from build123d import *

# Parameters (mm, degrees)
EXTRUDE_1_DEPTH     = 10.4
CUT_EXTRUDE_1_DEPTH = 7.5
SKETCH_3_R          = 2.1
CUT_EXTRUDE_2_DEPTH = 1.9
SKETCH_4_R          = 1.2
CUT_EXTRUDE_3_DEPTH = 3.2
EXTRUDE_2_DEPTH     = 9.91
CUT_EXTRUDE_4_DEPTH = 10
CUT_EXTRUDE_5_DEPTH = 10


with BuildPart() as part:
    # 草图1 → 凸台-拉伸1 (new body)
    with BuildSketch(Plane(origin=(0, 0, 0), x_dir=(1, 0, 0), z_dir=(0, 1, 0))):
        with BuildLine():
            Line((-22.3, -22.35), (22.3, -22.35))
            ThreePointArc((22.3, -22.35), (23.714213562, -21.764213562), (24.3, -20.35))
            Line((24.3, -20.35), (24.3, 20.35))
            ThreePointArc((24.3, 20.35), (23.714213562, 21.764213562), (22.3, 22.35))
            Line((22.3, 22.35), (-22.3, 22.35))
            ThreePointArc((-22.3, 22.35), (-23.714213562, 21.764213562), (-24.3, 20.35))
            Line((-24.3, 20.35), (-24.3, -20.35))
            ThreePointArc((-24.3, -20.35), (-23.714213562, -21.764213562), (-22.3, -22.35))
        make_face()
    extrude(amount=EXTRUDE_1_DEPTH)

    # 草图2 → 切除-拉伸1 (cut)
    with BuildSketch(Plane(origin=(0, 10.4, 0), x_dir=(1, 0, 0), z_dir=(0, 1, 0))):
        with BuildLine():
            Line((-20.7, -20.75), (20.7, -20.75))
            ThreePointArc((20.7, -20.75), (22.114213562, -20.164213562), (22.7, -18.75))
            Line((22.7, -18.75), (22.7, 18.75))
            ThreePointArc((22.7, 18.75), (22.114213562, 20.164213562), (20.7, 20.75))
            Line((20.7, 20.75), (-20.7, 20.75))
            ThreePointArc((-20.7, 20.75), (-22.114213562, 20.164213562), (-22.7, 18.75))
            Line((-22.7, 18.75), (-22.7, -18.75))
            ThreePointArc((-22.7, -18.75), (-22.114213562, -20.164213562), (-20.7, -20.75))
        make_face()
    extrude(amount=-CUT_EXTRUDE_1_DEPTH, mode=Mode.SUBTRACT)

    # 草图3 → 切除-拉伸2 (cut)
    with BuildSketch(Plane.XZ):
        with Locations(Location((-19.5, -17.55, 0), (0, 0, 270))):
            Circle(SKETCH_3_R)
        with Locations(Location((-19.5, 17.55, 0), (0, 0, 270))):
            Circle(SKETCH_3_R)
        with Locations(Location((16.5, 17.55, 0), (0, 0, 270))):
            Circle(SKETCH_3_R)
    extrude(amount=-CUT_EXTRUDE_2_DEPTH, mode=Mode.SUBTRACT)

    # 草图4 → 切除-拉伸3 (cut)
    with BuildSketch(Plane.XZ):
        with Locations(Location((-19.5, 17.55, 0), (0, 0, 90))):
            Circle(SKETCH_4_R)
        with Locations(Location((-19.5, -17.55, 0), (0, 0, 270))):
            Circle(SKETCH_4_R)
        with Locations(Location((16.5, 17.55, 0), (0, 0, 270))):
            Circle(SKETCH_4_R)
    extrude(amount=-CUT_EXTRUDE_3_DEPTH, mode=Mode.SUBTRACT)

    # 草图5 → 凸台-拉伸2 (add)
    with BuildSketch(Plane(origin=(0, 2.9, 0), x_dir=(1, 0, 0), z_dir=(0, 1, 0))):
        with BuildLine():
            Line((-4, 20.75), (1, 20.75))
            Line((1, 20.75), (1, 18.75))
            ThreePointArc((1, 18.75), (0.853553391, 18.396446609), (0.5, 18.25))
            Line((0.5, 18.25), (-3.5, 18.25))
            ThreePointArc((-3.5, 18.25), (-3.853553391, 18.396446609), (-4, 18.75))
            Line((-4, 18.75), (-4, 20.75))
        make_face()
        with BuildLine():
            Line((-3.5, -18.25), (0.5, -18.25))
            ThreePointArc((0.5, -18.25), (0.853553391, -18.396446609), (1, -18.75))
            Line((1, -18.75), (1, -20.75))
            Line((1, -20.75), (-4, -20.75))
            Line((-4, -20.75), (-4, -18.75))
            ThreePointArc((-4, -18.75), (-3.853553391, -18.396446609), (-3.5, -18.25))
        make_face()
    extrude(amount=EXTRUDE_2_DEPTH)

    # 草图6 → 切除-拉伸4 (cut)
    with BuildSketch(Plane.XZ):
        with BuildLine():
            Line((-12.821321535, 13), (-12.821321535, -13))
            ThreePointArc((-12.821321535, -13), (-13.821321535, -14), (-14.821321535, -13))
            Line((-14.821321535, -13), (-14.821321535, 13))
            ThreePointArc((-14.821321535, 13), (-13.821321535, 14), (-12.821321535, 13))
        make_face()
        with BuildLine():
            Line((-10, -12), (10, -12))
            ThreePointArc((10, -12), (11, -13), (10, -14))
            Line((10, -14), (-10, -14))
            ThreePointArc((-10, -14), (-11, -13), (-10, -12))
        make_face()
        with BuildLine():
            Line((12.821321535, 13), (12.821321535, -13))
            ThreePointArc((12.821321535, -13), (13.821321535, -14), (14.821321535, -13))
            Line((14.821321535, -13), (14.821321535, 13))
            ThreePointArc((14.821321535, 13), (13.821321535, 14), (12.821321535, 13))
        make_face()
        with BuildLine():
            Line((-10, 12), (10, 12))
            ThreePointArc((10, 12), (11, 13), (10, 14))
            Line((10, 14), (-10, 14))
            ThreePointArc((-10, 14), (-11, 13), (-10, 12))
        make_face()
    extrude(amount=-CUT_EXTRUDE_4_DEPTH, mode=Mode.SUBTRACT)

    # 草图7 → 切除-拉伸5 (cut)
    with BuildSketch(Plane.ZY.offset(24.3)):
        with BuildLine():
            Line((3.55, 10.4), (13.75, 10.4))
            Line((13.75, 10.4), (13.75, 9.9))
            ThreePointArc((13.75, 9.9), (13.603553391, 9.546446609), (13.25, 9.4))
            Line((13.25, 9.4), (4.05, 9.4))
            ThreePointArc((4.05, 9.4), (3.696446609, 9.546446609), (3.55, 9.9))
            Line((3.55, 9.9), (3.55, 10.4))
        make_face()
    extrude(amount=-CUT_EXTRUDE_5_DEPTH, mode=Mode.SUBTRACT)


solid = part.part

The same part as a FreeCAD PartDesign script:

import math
import FreeCAD as App
import Part
import Sketcher
from FreeCAD import Vector
Q = App.Units.Quantity

doc = App.newDocument("Part")
body = doc.addObject("PartDesign::Body", "Body")

sketch1 = body.newObject("Sketcher::SketchObject", "Sketch")
sketch1.AttachmentSupport = (doc.getObject("XZ_Plane"), [""])
sketch1.MapMode = "FlatFace"
sketch1.addGeometry(Part.LineSegment(Vector(-22.3, 22.4, 0), Vector(22.3, 22.4, 0)), False)
sketch1.addGeometry(Part.ArcOfCircle(Part.Circle(Vector(22.3, 20.3, 0), Vector(0, 0, 1), 2), math.radians(0), math.radians(90)), False)
sketch1.addGeometry(Part.LineSegment(Vector(24.3, 20.4, 0), Vector(24.3, -20.4, 0)), False)
sketch1.addGeometry(Part.ArcOfCircle(Part.Circle(Vector(22.3, -20.3, 0), Vector(0, 0, 1), 2), math.radians(-90), math.radians(0)), False)
sketch1.addGeometry(Part.LineSegment(Vector(22.3, -22.4, 0), Vector(-22.3, -22.4, 0)), False)
sketch1.addGeometry(Part.ArcOfCircle(Part.Circle(Vector(-22.3, -20.3, 0), Vector(0, 0, 1), 2), math.radians(-180), math.radians(-90)), False)
sketch1.addGeometry(Part.LineSegment(Vector(-24.3, -20.4, 0), Vector(-24.3, 20.4, 0)), False)
sketch1.addGeometry(Part.ArcOfCircle(Part.Circle(Vector(-22.3, 20.3, 0), Vector(0, 0, 1), 2), math.radians(90), math.radians(180)), False)
sketch1.addConstraint(Sketcher.Constraint("Tangent", 0, 2, 1, 2))
sketch1.addConstraint(Sketcher.Constraint("Tangent", 1, 1, 2, 1))
sketch1.addConstraint(Sketcher.Constraint("Tangent", 2, 2, 3, 2))
sketch1.addConstraint(Sketcher.Constraint("Tangent", 3, 1, 4, 1))
sketch1.addConstraint(Sketcher.Constraint("Tangent", 4, 2, 5, 2))
sketch1.addConstraint(Sketcher.Constraint("Tangent", 5, 1, 6, 1))
sketch1.addConstraint(Sketcher.Constraint("Tangent", 6, 2, 7, 2))
sketch1.addConstraint(Sketcher.Constraint("Tangent", 7, 1, 0, 1))
sketch1.addConstraint(Sketcher.Constraint("Horizontal", 0))
sketch1.addConstraint(Sketcher.Constraint("Vertical", 2))
sketch1.addConstraint(Sketcher.Constraint("Horizontal", 4))
sketch1.addConstraint(Sketcher.Constraint("Vertical", 6))
sketch1.addConstraint(Sketcher.Constraint("Equal", 1, 3))
sketch1.addConstraint(Sketcher.Constraint("Equal", 3, 5))
sketch1.addConstraint(Sketcher.Constraint("Equal", 5, 7))
sketch1.addConstraint(Sketcher.Constraint("Symmetric", 1, 3, 5, 3, -1, 1))
sketch1.addConstraint(Sketcher.Constraint("Radius", 1, Q("2 mm")))
sketch1.addConstraint(Sketcher.Constraint("DistanceX", 0, 1, 0, 2, Q("44.6 mm")))
sketch1.addConstraint(Sketcher.Constraint("DistanceY", 2, 2, 2, 1, Q("40.7 mm")))
pad1 = body.newObject("PartDesign::Pad", "Pad")
pad1.Profile = sketch1
pad1.Length = 10.4
pad1.Reversed = True

sketch2 = body.newObject("Sketcher::SketchObject", "Sketch001")
sketch2.AttachmentSupport = (doc.getObject("XZ_Plane"), [""])
sketch2.MapMode = "FlatFace"
sketch2.AttachmentOffset = App.Placement(Vector(0, 0, -10.4), App.Rotation())
sketch2.addGeometry(Part.LineSegment(Vector(-20.7, 20.8, 0), Vector(20.7, 20.8, 0)), False)
sketch2.addGeometry(Part.ArcOfCircle(Part.Circle(Vector(20.7, 18.7, 0), Vector(0, 0, 1), 2), math.radians(0), math.radians(90)), False)
sketch2.addGeometry(Part.LineSegment(Vector(22.7, 18.8, 0), Vector(22.7, -18.8, 0)), False)
sketch2.addGeometry(Part.ArcOfCircle(Part.Circle(Vector(20.7, -18.7, 0), Vector(0, 0, 1), 2), math.radians(-90), math.radians(0)), False)
sketch2.addGeometry(Part.LineSegment(Vector(20.7, -20.8, 0), Vector(-20.7, -20.8, 0)), False)
sketch2.addGeometry(Part.ArcOfCircle(Part.Circle(Vector(-20.7, -18.7, 0), Vector(0, 0, 1), 2), math.radians(-180), math.radians(-90)), False)
sketch2.addGeometry(Part.LineSegment(Vector(-22.7, -18.8, 0), Vector(-22.7, 18.8, 0)), False)
sketch2.addGeometry(Part.ArcOfCircle(Part.Circle(Vector(-20.7, 18.7, 0), Vector(0, 0, 1), 2), math.radians(90), math.radians(180)), False)
sketch2.addConstraint(Sketcher.Constraint("Tangent", 0, 2, 1, 2))
sketch2.addConstraint(Sketcher.Constraint("Tangent", 1, 1, 2, 1))
sketch2.addConstraint(Sketcher.Constraint("Tangent", 2, 2, 3, 2))
sketch2.addConstraint(Sketcher.Constraint("Tangent", 3, 1, 4, 1))
sketch2.addConstraint(Sketcher.Constraint("Tangent", 4, 2, 5, 2))
sketch2.addConstraint(Sketcher.Constraint("Tangent", 5, 1, 6, 1))
sketch2.addConstraint(Sketcher.Constraint("Tangent", 6, 2, 7, 2))
sketch2.addConstraint(Sketcher.Constraint("Tangent", 7, 1, 0, 1))
sketch2.addConstraint(Sketcher.Constraint("Horizontal", 0))
sketch2.addConstraint(Sketcher.Constraint("Vertical", 2))
sketch2.addConstraint(Sketcher.Constraint("Horizontal", 4))
sketch2.addConstraint(Sketcher.Constraint("Vertical", 6))
sketch2.addConstraint(Sketcher.Constraint("Equal", 1, 3))
sketch2.addConstraint(Sketcher.Constraint("Equal", 3, 5))
sketch2.addConstraint(Sketcher.Constraint("Equal", 5, 7))
sketch2.addConstraint(Sketcher.Constraint("Symmetric", 1, 3, 5, 3, -1, 1))
sketch2.addConstraint(Sketcher.Constraint("Radius", 1, Q("2 mm")))
sketch2.addConstraint(Sketcher.Constraint("DistanceX", 0, 1, 0, 2, Q("41.4 mm")))
sketch2.addConstraint(Sketcher.Constraint("DistanceY", 2, 2, 2, 1, Q("37.5 mm")))
pocket1 = body.newObject("PartDesign::Pocket", "Pocket")
pocket1.Profile = sketch2
pocket1.Length = 7.5
pocket1.Reversed = True

sketch3 = body.newObject("Sketcher::SketchObject", "Sketch002")
sketch3.AttachmentSupport = (doc.getObject("XZ_Plane"), [""])
sketch3.MapMode = "FlatFace"
sketch3.addGeometry(Part.Circle(Vector(-19.5, -17.6, 0), Vector(0, 0, 1), 2.1), False)
sketch3.addGeometry(Part.Circle(Vector(-19.5, 17.6, 0), Vector(0, 0, 1), 2.1), False)
sketch3.addGeometry(Part.Circle(Vector(16.5, 17.6, 0), Vector(0, 0, 1), 2.1), False)
sketch3.addConstraint(Sketcher.Constraint("Equal", 0, 1))
sketch3.addConstraint(Sketcher.Constraint("Equal", 1, 2))
sketch3.addConstraint(Sketcher.Constraint("Symmetric", 0, 3, 1, 3, -1))
sketch3.addConstraint(Sketcher.Constraint("Horizontal", 1, 3, 2, 3))
sketch3.addConstraint(Sketcher.Constraint("Diameter", 0, Q("4.2 mm")))
sketch3.addConstraint(Sketcher.Constraint("DistanceX", 1, 3, 2, 3, Q("36 mm")))
sketch3.addConstraint(Sketcher.Constraint("DistanceX", 0, 3, -1, 1, Q("19.5 mm")))
sketch3.addConstraint(Sketcher.Constraint("DistanceY", 0, 3, 1, 3, Q("35.1 mm")))
pocket2 = body.newObject("PartDesign::Pocket", "Pocket001")
pocket2.Profile = sketch3
pocket2.Length = 1.9

sketch4 = body.newObject("Sketcher::SketchObject", "Sketch003")
sketch4.AttachmentSupport = (doc.getObject("XZ_Plane"), [""])
sketch4.MapMode = "FlatFace"
sketch4.addGeometry(Part.Circle(Vector(-19.5, 17.6, 0), Vector(0, 0, 1), 1.2), False)
sketch4.addGeometry(Part.Circle(Vector(-19.5, -17.6, 0), Vector(0, 0, 1), 1.2), False)
sketch4.addGeometry(Part.Circle(Vector(16.5, 17.6, 0), Vector(0, 0, 1), 1.2), False)
sketch4.addConstraint(Sketcher.Constraint("Equal", 0, 1))
sketch4.addConstraint(Sketcher.Constraint("Equal", 1, 2))
sketch4.addConstraint(Sketcher.Constraint("Symmetric", 0, 3, 1, 3, -1))
sketch4.addConstraint(Sketcher.Constraint("Horizontal", 0, 3, 2, 3))
sketch4.addConstraint(Sketcher.Constraint("Diameter", 0, Q("2.4 mm")))
sketch4.addConstraint(Sketcher.Constraint("DistanceX", 0, 3, 2, 3, Q("36 mm")))
sketch4.addConstraint(Sketcher.Constraint("DistanceX", 0, 3, -1, 1, Q("19.5 mm")))
sketch4.addConstraint(Sketcher.Constraint("DistanceY", 1, 3, 0, 3, Q("35.1 mm")))
pocket3 = body.newObject("PartDesign::Pocket", "Pocket002")
pocket3.Profile = sketch4
pocket3.Length = 3.2

sketch5 = body.newObject("Sketcher::SketchObject", "Sketch004")
sketch5.AttachmentSupport = (doc.getObject("XZ_Plane"), [""])
sketch5.MapMode = "FlatFace"
sketch5.AttachmentOffset = App.Placement(Vector(0, 0, -2.9), App.Rotation())
sketch5.addGeometry(Part.LineSegment(Vector(1, -20.75, 0), Vector(-4, -20.75, 0)), False)
sketch5.addGeometry(Part.LineSegment(Vector(-4, -20.75, 0), Vector(-4, -18.75, 0)), False)
sketch5.addGeometry(Part.ArcOfCircle(Part.Circle(Vector(-3.5, -18.75, 0), Vector(0, 0, 1), 0.5), math.radians(90), math.radians(180)), False)
sketch5.addGeometry(Part.LineSegment(Vector(-3.5, -18.25, 0), Vector(0.5, -18.25, 0)), False)
sketch5.addGeometry(Part.ArcOfCircle(Part.Circle(Vector(0.5, -18.75, 0), Vector(0, 0, 1), 0.5), math.radians(0), math.radians(90)), False)
sketch5.addGeometry(Part.LineSegment(Vector(1, -18.75, 0), Vector(1, -20.75, 0)), False)
sketch5.addGeometry(Part.LineSegment(Vector(0.5, 18.25, 0), Vector(-3.5, 18.25, 0)), False)
sketch5.addGeometry(Part.ArcOfCircle(Part.Circle(Vector(-3.5, 18.75, 0), Vector(0, 0, 1), 0.5), math.radians(180), math.radians(270)), False)
sketch5.addGeometry(Part.LineSegment(Vector(-4, 18.75, 0), Vector(-4, 20.75, 0)), False)
sketch5.addGeometry(Part.LineSegment(Vector(-4, 20.75, 0), Vector(1, 20.75, 0)), False)
sketch5.addGeometry(Part.LineSegment(Vector(1, 20.75, 0), Vector(1, 18.75, 0)), False)
sketch5.addGeometry(Part.ArcOfCircle(Part.Circle(Vector(0.5, 18.75, 0), Vector(0, 0, 1), 0.5), math.radians(-90), math.radians(0)), False)
sketch5.addConstraint(Sketcher.Constraint("Coincident", 0, 2, 1, 1))
sketch5.addConstraint(Sketcher.Constraint("Tangent", 1, 2, 2, 2))
sketch5.addConstraint(Sketcher.Constraint("Tangent", 2, 1, 3, 1))
sketch5.addConstraint(Sketcher.Constraint("Tangent", 3, 2, 4, 2))
sketch5.addConstraint(Sketcher.Constraint("Tangent", 4, 1, 5, 1))
sketch5.addConstraint(Sketcher.Constraint("Coincident", 5, 2, 0, 1))
sketch5.addConstraint(Sketcher.Constraint("Tangent", 6, 2, 7, 2))
sketch5.addConstraint(Sketcher.Constraint("Tangent", 7, 1, 8, 1))
sketch5.addConstraint(Sketcher.Constraint("Coincident", 8, 2, 9, 1))
sketch5.addConstraint(Sketcher.Constraint("Coincident", 9, 2, 10, 1))
sketch5.addConstraint(Sketcher.Constraint("Tangent", 10, 2, 11, 2))
sketch5.addConstraint(Sketcher.Constraint("Tangent", 11, 1, 6, 1))
sketch5.addConstraint(Sketcher.Constraint("Horizontal", 0))
sketch5.addConstraint(Sketcher.Constraint("Vertical", 1))
sketch5.addConstraint(Sketcher.Constraint("Horizontal", 3))
sketch5.addConstraint(Sketcher.Constraint("Vertical", 5))
sketch5.addConstraint(Sketcher.Constraint("Horizontal", 6))
sketch5.addConstraint(Sketcher.Constraint("Vertical", 8))
sketch5.addConstraint(Sketcher.Constraint("Horizontal", 9))
sketch5.addConstraint(Sketcher.Constraint("Vertical", 10))
sketch5.addConstraint(Sketcher.Constraint("Equal", 2, 4))
sketch5.addConstraint(Sketcher.Constraint("Equal", 4, 7))
sketch5.addConstraint(Sketcher.Constraint("Equal", 7, 11))
sketch5.addConstraint(Sketcher.Constraint("Symmetric", 2, 3, 7, 3, -1))
sketch5.addConstraint(Sketcher.Constraint("Symmetric", 5, 2, 9, 2, -1))
sketch5.addConstraint(Sketcher.Constraint("Radius", 2, Q("0.5 mm")))
sketch5.addConstraint(Sketcher.Constraint("DistanceX", 0, 2, 0, 1, Q("5 mm")))
sketch5.addConstraint(Sketcher.Constraint("DistanceY", 1, 1, 1, 2, Q("2 mm")))
sketch5.addConstraint(Sketcher.Constraint("DistanceX", 0, 2, -1, 1, Q("4 mm")))
sketch5.addConstraint(Sketcher.Constraint("DistanceY", 2, 1, 7, 3, Q("37 mm")))
pad2 = body.newObject("PartDesign::Pad", "Pad001")
pad2.Profile = sketch5
pad2.Length = 9.91
pad2.Reversed = True

sketch6 = body.newObject("Sketcher::SketchObject", "Sketch005")
sketch6.AttachmentSupport = (doc.getObject("XZ_Plane"), [""])
sketch6.MapMode = "FlatFace"
sketch6.addGeometry(Part.LineSegment(Vector(-12.8, -13, 0), Vector(-12.8, 13, 0)), False)
sketch6.addGeometry(Part.ArcOfCircle(Part.Circle(Vector(-13.8, 13, 0), Vector(0, 0, 1), 1), math.radians(0), math.radians(180)), False)
sketch6.addGeometry(Part.LineSegment(Vector(-14.8, 13, 0), Vector(-14.8, -13, 0)), False)
sketch6.addGeometry(Part.ArcOfCircle(Part.Circle(Vector(-13.8, -13, 0), Vector(0, 0, 1), 1), math.radians(180), math.radians(360)), False)
sketch6.addGeometry(Part.LineSegment(Vector(10, -12, 0), Vector(-10, -12, 0)), False)
sketch6.addGeometry(Part.ArcOfCircle(Part.Circle(Vector(-10, -13, 0), Vector(0, 0, 1), 1), math.radians(90), math.radians(270)), False)
sketch6.addGeometry(Part.LineSegment(Vector(-10, -14, 0), Vector(10, -14, 0)), False)
sketch6.addGeometry(Part.ArcOfCircle(Part.Circle(Vector(10, -13, 0), Vector(0, 0, 1), 1), math.radians(-90), math.radians(90)), False)
sketch6.addGeometry(Part.LineSegment(Vector(12.8, 13, 0), Vector(12.8, -13, 0)), False)
sketch6.addGeometry(Part.ArcOfCircle(Part.Circle(Vector(13.8, -13, 0), Vector(0, 0, 1), 1), math.radians(180), math.radians(360)), False)
sketch6.addGeometry(Part.LineSegment(Vector(14.8, -13, 0), Vector(14.8, 13, 0)), False)
sketch6.addGeometry(Part.ArcOfCircle(Part.Circle(Vector(13.8, 13, 0), Vector(0, 0, 1), 1), math.radians(0), math.radians(180)), False)
sketch6.addGeometry(Part.LineSegment(Vector(-10, 12, 0), Vector(10, 12, 0)), False)
sketch6.addGeometry(Part.ArcOfCircle(Part.Circle(Vector(10, 13, 0), Vector(0, 0, 1), 1), math.radians(-90), math.radians(90)), False)
sketch6.addGeometry(Part.LineSegment(Vector(10, 14, 0), Vector(-10, 14, 0)), False)
sketch6.addGeometry(Part.ArcOfCircle(Part.Circle(Vector(-10, 13, 0), Vector(0, 0, 1), 1), math.radians(90), math.radians(270)), False)
sketch6.addConstraint(Sketcher.Constraint("Tangent", 0, 2, 1, 1))
sketch6.addConstraint(Sketcher.Constraint("Tangent", 1, 2, 2, 1))
sketch6.addConstraint(Sketcher.Constraint("Tangent", 2, 2, 3, 1))
sketch6.addConstraint(Sketcher.Constraint("Tangent", 3, 2, 0, 1))
sketch6.addConstraint(Sketcher.Constraint("Tangent", 4, 2, 5, 1))
sketch6.addConstraint(Sketcher.Constraint("Tangent", 5, 2, 6, 1))
sketch6.addConstraint(Sketcher.Constraint("Tangent", 6, 2, 7, 1))
sketch6.addConstraint(Sketcher.Constraint("Tangent", 7, 2, 4, 1))
sketch6.addConstraint(Sketcher.Constraint("Tangent", 8, 2, 9, 1))
sketch6.addConstraint(Sketcher.Constraint("Tangent", 9, 2, 10, 1))
sketch6.addConstraint(Sketcher.Constraint("Tangent", 10, 2, 11, 1))
sketch6.addConstraint(Sketcher.Constraint("Tangent", 11, 2, 8, 1))
sketch6.addConstraint(Sketcher.Constraint("Tangent", 12, 2, 13, 1))
sketch6.addConstraint(Sketcher.Constraint("Tangent", 13, 2, 14, 1))
sketch6.addConstraint(Sketcher.Constraint("Tangent", 14, 2, 15, 1))
sketch6.addConstraint(Sketcher.Constraint("Tangent", 15, 2, 12, 1))
sketch6.addConstraint(Sketcher.Constraint("Vertical", 0))
sketch6.addConstraint(Sketcher.Constraint("Vertical", 2))
sketch6.addConstraint(Sketcher.Constraint("Horizontal", 4))
sketch6.addConstraint(Sketcher.Constraint("Horizontal", 6))
sketch6.addConstraint(Sketcher.Constraint("Vertical", 8))
sketch6.addConstraint(Sketcher.Constraint("Vertical", 10))
sketch6.addConstraint(Sketcher.Constraint("Horizontal", 12))
sketch6.addConstraint(Sketcher.Constraint("Horizontal", 14))
sketch6.addConstraint(Sketcher.Constraint("Equal", 3, 5))
sketch6.addConstraint(Sketcher.Constraint("Equal", 7, 9))
sketch6.addConstraint(Sketcher.Constraint("Equal", 11, 13))
sketch6.addConstraint(Sketcher.Constraint("Symmetric", 1, 3, 9, 3, -1, 1))
sketch6.addConstraint(Sketcher.Constraint("Symmetric", 5, 3, 13, 3, -1, 1))
sketch6.addConstraint(Sketcher.Constraint("Horizontal", 3, 3, 5, 3))
sketch6.addConstraint(Sketcher.Constraint("Horizontal", 7, 3, 9, 3))
sketch6.addConstraint(Sketcher.Constraint("Horizontal", 1, 3, 11, 3))
sketch6.addConstraint(Sketcher.Constraint("Vertical", 7, 3, 13, 3))
sketch6.addConstraint(Sketcher.Constraint("Vertical", 5, 3, 15, 3))
sketch6.addConstraint(Sketcher.Constraint("Radius", 1, Q("1 mm")))
sketch6.addConstraint(Sketcher.Constraint("DistanceX", 4, 2, 4, 1, Q("20 mm")))
sketch6.addConstraint(Sketcher.Constraint("DistanceY", 0, 1, 0, 2, Q("26 mm")))
sketch6.addConstraint(Sketcher.Constraint("DistanceX", 1, 3, -1, 1, Q("13.821322 mm")))
pocket4 = body.newObject("PartDesign::Pocket", "Pocket003")
pocket4.Profile = sketch6
pocket4.Length = 10

sketch7 = body.newObject("Sketcher::SketchObject", "Sketch006")
sketch7.AttachmentSupport = (doc.getObject("YZ_Plane"), [""])
sketch7.MapMode = "FlatFace"
sketch7.AttachmentOffset = App.Placement(Vector(0, 0, -24.3), App.Rotation())
sketch7.addGeometry(Part.LineSegment(Vector(10.4, 13.75, 0), Vector(10.4, 3.55, 0)), False)
sketch7.addGeometry(Part.LineSegment(Vector(10.4, 3.55, 0), Vector(9.9, 3.55, 0)), False)
sketch7.addGeometry(Part.ArcOfCircle(Part.Circle(Vector(9.9, 4.05, 0), Vector(0, 0, 1), 0.5), math.radians(180), math.radians(270)), False)
sketch7.addGeometry(Part.LineSegment(Vector(9.4, 4.05, 0), Vector(9.4, 13.25, 0)), False)
sketch7.addGeometry(Part.ArcOfCircle(Part.Circle(Vector(9.9, 13.25, 0), Vector(0, 0, 1), 0.5), math.radians(90), math.radians(180)), False)
sketch7.addGeometry(Part.LineSegment(Vector(9.9, 13.75, 0), Vector(10.4, 13.75, 0)), False)
sketch7.addConstraint(Sketcher.Constraint("Coincident", 0, 2, 1, 1))
sketch7.addConstraint(Sketcher.Constraint("Tangent", 1, 2, 2, 2))
sketch7.addConstraint(Sketcher.Constraint("Tangent", 2, 1, 3, 1))
sketch7.addConstraint(Sketcher.Constraint("Tangent", 3, 2, 4, 2))
sketch7.addConstraint(Sketcher.Constraint("Tangent", 4, 1, 5, 1))
sketch7.addConstraint(Sketcher.Constraint("Coincident", 5, 2, 0, 1))
sketch7.addConstraint(Sketcher.Constraint("Vertical", 0))
sketch7.addConstraint(Sketcher.Constraint("Horizontal", 1))
sketch7.addConstraint(Sketcher.Constraint("Vertical", 3))
sketch7.addConstraint(Sketcher.Constraint("Horizontal", 5))
sketch7.addConstraint(Sketcher.Constraint("Equal", 2, 4))
sketch7.addConstraint(Sketcher.Constraint("Radius", 2, Q("0.5 mm")))
sketch7.addConstraint(Sketcher.Constraint("DistanceX", 1, 2, 1, 1, Q("0.5 mm")))
sketch7.addConstraint(Sketcher.Constraint("DistanceY", 0, 2, 0, 1, Q("10.2 mm")))
sketch7.addConstraint(Sketcher.Constraint("DistanceX", -1, 1, 2, 3, Q("9.9 mm")))
sketch7.addConstraint(Sketcher.Constraint("DistanceY", -1, 1, 2, 3, Q("4.05 mm")))
pocket5 = body.newObject("PartDesign::Pocket", "Pocket004")
pocket5.Profile = sketch7
pocket5.Length = 10
pocket5.Reversed = True

doc.recompute()
